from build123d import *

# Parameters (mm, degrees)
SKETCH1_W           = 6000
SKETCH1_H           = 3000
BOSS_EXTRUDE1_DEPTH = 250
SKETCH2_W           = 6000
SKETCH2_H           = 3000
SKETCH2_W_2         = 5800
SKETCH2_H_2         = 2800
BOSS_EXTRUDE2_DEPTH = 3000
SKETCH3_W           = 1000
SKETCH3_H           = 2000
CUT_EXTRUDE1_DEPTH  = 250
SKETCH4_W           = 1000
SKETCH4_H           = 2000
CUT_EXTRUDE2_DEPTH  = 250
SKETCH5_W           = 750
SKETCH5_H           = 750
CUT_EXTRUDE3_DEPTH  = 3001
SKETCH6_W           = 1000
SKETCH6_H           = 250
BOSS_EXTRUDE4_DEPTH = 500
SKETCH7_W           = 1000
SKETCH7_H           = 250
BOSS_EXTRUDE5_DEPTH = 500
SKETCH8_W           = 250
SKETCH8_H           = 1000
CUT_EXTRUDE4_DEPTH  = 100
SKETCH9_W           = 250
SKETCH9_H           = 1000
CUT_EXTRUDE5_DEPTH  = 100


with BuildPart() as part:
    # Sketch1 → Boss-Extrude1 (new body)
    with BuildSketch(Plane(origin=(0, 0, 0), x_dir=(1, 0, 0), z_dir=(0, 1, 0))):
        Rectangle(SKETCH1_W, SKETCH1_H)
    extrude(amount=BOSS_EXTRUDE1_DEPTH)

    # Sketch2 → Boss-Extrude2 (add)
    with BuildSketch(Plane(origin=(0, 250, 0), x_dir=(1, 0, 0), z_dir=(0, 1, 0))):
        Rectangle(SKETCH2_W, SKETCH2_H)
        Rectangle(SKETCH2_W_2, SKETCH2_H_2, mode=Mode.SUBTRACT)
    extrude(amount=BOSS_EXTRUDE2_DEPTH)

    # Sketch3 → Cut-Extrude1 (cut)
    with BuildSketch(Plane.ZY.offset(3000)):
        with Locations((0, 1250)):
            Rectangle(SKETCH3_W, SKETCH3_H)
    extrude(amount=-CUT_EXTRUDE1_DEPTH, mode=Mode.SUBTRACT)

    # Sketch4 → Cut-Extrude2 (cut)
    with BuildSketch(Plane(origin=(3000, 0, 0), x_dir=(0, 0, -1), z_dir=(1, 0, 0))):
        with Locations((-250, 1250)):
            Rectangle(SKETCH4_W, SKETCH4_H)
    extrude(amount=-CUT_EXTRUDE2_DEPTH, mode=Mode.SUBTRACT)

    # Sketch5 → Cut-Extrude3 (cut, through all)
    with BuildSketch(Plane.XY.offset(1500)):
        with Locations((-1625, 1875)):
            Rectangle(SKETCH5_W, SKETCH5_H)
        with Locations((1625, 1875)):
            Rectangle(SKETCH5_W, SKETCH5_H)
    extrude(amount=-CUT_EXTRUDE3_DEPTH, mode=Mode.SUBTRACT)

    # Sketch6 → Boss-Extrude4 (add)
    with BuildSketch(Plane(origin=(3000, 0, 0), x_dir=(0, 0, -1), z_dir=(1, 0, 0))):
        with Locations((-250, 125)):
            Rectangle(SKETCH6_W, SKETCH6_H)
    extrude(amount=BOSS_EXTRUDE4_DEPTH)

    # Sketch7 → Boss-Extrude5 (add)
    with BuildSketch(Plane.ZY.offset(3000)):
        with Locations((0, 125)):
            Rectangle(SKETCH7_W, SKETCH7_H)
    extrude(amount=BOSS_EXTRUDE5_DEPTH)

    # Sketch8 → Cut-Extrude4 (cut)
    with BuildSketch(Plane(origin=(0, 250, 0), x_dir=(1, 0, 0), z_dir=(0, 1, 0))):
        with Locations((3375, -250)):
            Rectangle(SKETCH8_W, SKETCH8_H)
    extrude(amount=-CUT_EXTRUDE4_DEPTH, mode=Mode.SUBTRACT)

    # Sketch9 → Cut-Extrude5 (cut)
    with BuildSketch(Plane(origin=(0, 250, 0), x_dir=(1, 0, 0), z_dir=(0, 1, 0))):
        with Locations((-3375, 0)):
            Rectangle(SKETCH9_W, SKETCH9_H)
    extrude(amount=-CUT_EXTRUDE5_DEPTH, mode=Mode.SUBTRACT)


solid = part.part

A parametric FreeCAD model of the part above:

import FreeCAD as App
import Part
import Sketcher

V = App.Vector

doc = App.newDocument("Part")
body = doc.addObject("PartDesign::Body", "Body")

# Sketch on XZ plane
sketch1 = doc.addObject("Sketcher::SketchObject", "Sketch")
body.addObject(sketch1)
sketch1.AttachmentSupport = (doc.XZ_Plane, [""])
sketch1.MapMode = "FlatFace"
sketch1.addGeometry([
    Part.LineSegment(V(-3000, -1500, 0), V(-3000, 1500, 0)),
    Part.LineSegment(V(-3000, 1500, 0), V(3000, 1500, 0)),
    Part.LineSegment(V(3000, 1500, 0), V(3000, -1500, 0)),
    Part.LineSegment(V(3000, -1500, 0), V(-3000, -1500, 0)),
], False)
sketch1.addConstraint([
    Sketcher.Constraint("Coincident", 0, 2, 1, 1),
    Sketcher.Constraint("Coincident", 1, 2, 2, 1),
    Sketcher.Constraint("Coincident", 2, 2, 3, 1),
    Sketcher.Constraint("Coincident", 3, 2, 0, 1),
    Sketcher.Constraint("Vertical", 0),
    Sketcher.Constraint("Horizontal", 1),
    Sketcher.Constraint("Vertical", 2),
    Sketcher.Constraint("Horizontal", 3),
    Sketcher.Constraint("Symmetric", 0, 2, 2, 2, -1, 1),
    Sketcher.Constraint("DistanceX", 1, 1, 1, 2, 6000.0),
    Sketcher.Constraint("DistanceY", 0, 1, 0, 2, 3000.0),
])
pad1 = doc.addObject("PartDesign::Pad", "Pad")
body.addObject(pad1)
pad1.Profile = sketch1
pad1.Length = 250
pad1.Reversed = True

# Sketch on XZ plane
sketch2 = doc.addObject("Sketcher::SketchObject", "Sketch001")
body.addObject(sketch2)
sketch2.AttachmentSupport = (doc.XZ_Plane, [""])
sketch2.MapMode = "FlatFace"
sketch2.AttachmentOffset = App.Placement(V(0, 0, -250), App.Rotation())
sketch2.addGeometry([
    Part.LineSegment(V(-3000, -1500, 0), V(-3000, 1500, 0)),  # 0
    Part.LineSegment(V(-3000, 1500, 0), V(3000, 1500, 0)),  # 1
    Part.LineSegment(V(3000, 1500, 0), V(3000, -1500, 0)),  # 2
    Part.LineSegment(V(3000, -1500, 0), V(-3000, -1500, 0)),  # 3
    Part.LineSegment(V(2900, 1400, 0), V(-2900, 1400, 0)),  # 4
    Part.LineSegment(V(-2900, 1400, 0), V(-2900, -1400, 0)),  # 5
    Part.LineSegment(V(-2900, -1400, 0), V(2900, -1400, 0)),  # 6
    Part.LineSegment(V(2900, -1400, 0), V(2900, 1400, 0)),  # 7
], False)
sketch2.addConstraint([
    Sketcher.Constraint("Coincident", 0, 2, 1, 1),
    Sketcher.Constraint("Coincident", 1, 2, 2, 1),
    Sketcher.Constraint("Coincident", 2, 2, 3, 1),
    Sketcher.Constraint("Coincident", 3, 2, 0, 1),
    Sketcher.Constraint("Coincident", 4, 2, 5, 1),
    Sketcher.Constraint("Coincident", 5, 2, 6, 1),
    Sketcher.Constraint("Coincident", 6, 2, 7, 1),
    Sketcher.Constraint("Coincident", 7, 2, 4, 1),
    Sketcher.Constraint("Vertical", 0),
    Sketcher.Constraint("Horizontal", 1),
    Sketcher.Constraint("Vertical", 2),
    Sketcher.Constraint("Horizontal", 3),
    Sketcher.Constraint("Horizontal", 4),
    Sketcher.Constraint("Vertical", 5),
    Sketcher.Constraint("Horizontal", 6),
    Sketcher.Constraint("Vertical", 7),
    Sketcher.Constraint("Symmetric", 0, 2, 2, 2, -1, 1),
    Sketcher.Constraint("Symmetric", 4, 2, 6, 2, -1, 1),
    Sketcher.Constraint("DistanceX", 1, 1, 1, 2, 6000.0),
    Sketcher.Constraint("DistanceX", 4, 2, 4, 1, 5800.0),
    Sketcher.Constraint("DistanceY", 0, 1, 0, 2, 3000.0),
    Sketcher.Constraint("DistanceY", 5, 2, 5, 1, 2800.0),
])
pad2 = doc.addObject("PartDesign::Pad", "Pad001")
body.addObject(pad2)
pad2.Profile = sketch2
pad2.Length = 3000
pad2.Reversed = True

# Sketch on YZ plane
sketch3 = doc.addObject("Sketcher::SketchObject", "Sketch002")
body.addObject(sketch3)
sketch3.AttachmentSupport = (doc.YZ_Plane, [""])
sketch3.MapMode = "FlatFace"
sketch3.AttachmentOffset = App.Placement(V(0, 0, -3000), App.Rotation())
sketch3.addGeometry([
    Part.LineSegment(V(2250, -500, 0), V(250, -500, 0)),
    Part.LineSegment(V(250, -500, 0), V(250, 500, 0)),
    Part.LineSegment(V(250, 500, 0), V(2250, 500, 0)),
    Part.LineSegment(V(2250, 500, 0), V(2250, -500, 0)),
], False)
sketch3.addConstraint([
    Sketcher.Constraint("Coincident", 0, 2, 1, 1),
    Sketcher.Constraint("Coincident", 1, 2, 2, 1),
    Sketcher.Constraint("Coincident", 2, 2, 3, 1),
    Sketcher.Constraint("Coincident", 3, 2, 0, 1),
    Sketcher.Constraint("Horizontal", 0),
    Sketcher.Constraint("Vertical", 1),
    Sketcher.Constraint("Horizontal", 2),
    Sketcher.Constraint("Vertical", 3),
    Sketcher.Constraint("DistanceX", 0, 2, 0, 1, 2000.0),
    Sketcher.Constraint("DistanceY", 1, 1, 1, 2, 1000.0),
    Sketcher.Constraint("DistanceX", -1, 1, 0, 2, 250.0),
    Sketcher.Constraint("DistanceY", 0, 2, -1, 1, 500.0),
])
pocket1 = doc.addObject("PartDesign::Pocket", "Pocket")
body.addObject(pocket1)
pocket1.Profile = sketch3
pocket1.Length = 250
pocket1.Reversed = True

# Sketch on YZ plane
sketch4 = doc.addObject("Sketcher::SketchObject", "Sketch003")
body.addObject(sketch4)
sketch4.AttachmentSupport = (doc.YZ_Plane, [""])
sketch4.MapMode = "FlatFace"
sketch4.AttachmentOffset = App.Placement(V(0, 0, 3000), App.Rotation())
sketch4.addGeometry([
    Part.LineSegment(V(2250, 750, 0), V(250, 750, 0)),
    Part.LineSegment(V(250, 750, 0), V(250, -250, 0)),
    Part.LineSegment(V(250, -250, 0), V(2250, -250, 0)),
    Part.LineSegment(V(2250, -250, 0), V(2250, 750, 0)),
], False)
sketch4.addConstraint([
    Sketcher.Constraint("Coincident", 0, 2, 1, 1),
    Sketcher.Constraint("Coincident", 1, 2, 2, 1),
    Sketcher.Constraint("Coincident", 2, 2, 3, 1),
    Sketcher.Constraint("Coincident", 3, 2, 0, 1),
    Sketcher.Constraint("Horizontal", 0),
    Sketcher.Constraint("Vertical", 1),
    Sketcher.Constraint("Horizontal", 2),
    Sketcher.Constraint("Vertical", 3),
    Sketcher.Constraint("DistanceX", 0, 2, 0, 1, 2000.0),
    Sketcher.Constraint("DistanceY", 1, 2, 1, 1, 1000.0),
    Sketcher.Constraint("DistanceX", -1, 1, 0, 2, 250.0),
    Sketcher.Constraint("DistanceY", -1, 1, 0, 2, 750.0),
])
pocket2 = doc.addObject("PartDesign::Pocket", "Pocket001")
body.addObject(pocket2)
pocket2.Profile = sketch4
pocket2.Length = 250

# Sketch on XY plane
sketch5 = doc.addObject("Sketcher::SketchObject", "Sketch004")
body.addObject(sketch5)
sketch5.AttachmentSupport = (doc.XY_Plane, [""])
sketch5.MapMode = "FlatFace"
sketch5.AttachmentOffset = App.Placement(V(0, 0, 1500), App.Rotation())
sketch5.addGeometry([
    Part.LineSegment(V(-2000, 2250, 0), V(-2000, 1500, 0)),  # 0
    Part.LineSegment(V(-2000, 1500, 0), V(-1250, 1500, 0)),  # 1
    Part.LineSegment(V(-1250, 1500, 0), V(-1250, 2250, 0)),  # 2
    Part.LineSegment(V(-1250, 2250, 0), V(-2000, 2250, 0)),  # 3
    Part.LineSegment(V(1250, 2250, 0), V(1250, 1500, 0)),  # 4
    Part.LineSegment(V(1250, 1500, 0), V(2000, 1500, 0)),  # 5
    Part.LineSegment(V(2000, 1500, 0), V(2000, 2250, 0)),  # 6
    Part.LineSegment(V(2000, 2250, 0), V(1250, 2250, 0)),  # 7
], False)
sketch5.addConstraint([
    Sketcher.Constraint("Coincident", 0, 2, 1, 1),
    Sketcher.Constraint("Coincident", 1, 2, 2, 1),
    Sketcher.Constraint("Coincident", 2, 2, 3, 1),
    Sketcher.Constraint("Coincident", 3, 2, 0, 1),
    Sketcher.Constraint("Coincident", 4, 2, 5, 1),
    Sketcher.Constraint("Coincident", 5, 2, 6, 1),
    Sketcher.Constraint("Coincident", 6, 2, 7, 1),
    Sketcher.Constraint("Coincident", 7, 2, 4, 1),
    Sketcher.Constraint("Vertical", 0),
    Sketcher.Constraint("Horizontal", 1),
    Sketcher.Constraint("Vertical", 2),
    Sketcher.Constraint("Horizontal", 3),
    Sketcher.Constraint("Vertical", 4),
    Sketcher.Constraint("Horizontal", 5),
    Sketcher.Constraint("Vertical", 6),
    Sketcher.Constraint("Horizontal", 7),
    Sketcher.Constraint("Symmetric", 1, 2, 4, 2, -2),
    Sketcher.Constraint("Symmetric", 3, 2, 6, 2, -2),
    Sketcher.Constraint("Equal", 7, 0),
    Sketcher.Constraint("DistanceX", 1, 1, 1, 2, 750.0),
    Sketcher.Constraint("DistanceX", 0, 2, -1, 1, 2000.0),
    Sketcher.Constraint("DistanceY", -1, 1, 0, 2, 1500.0),
])
pocket3 = doc.addObject("PartDesign::Pocket", "Pocket002")
body.addObject(pocket3)
pocket3.Profile = sketch5
pocket3.Type = "ThroughAll"

# Sketch on YZ plane
sketch6 = doc.addObject("Sketcher::SketchObject", "Sketch005")
body.addObject(sketch6)
sketch6.AttachmentSupport = (doc.YZ_Plane, [""])
sketch6.MapMode = "FlatFace"
sketch6.AttachmentOffset = App.Placement(V(0, 0, 3000), App.Rotation())
sketch6.addGeometry([
    Part.LineSegment(V(250, 750, 0), V(0, 750, 0)),
    Part.LineSegment(V(0, 750, 0), V(0, -250, 0)),
    Part.LineSegment(V(0, -250, 0), V(250, -250, 0)),
    Part.LineSegment(V(250, -250, 0), V(250, 750, 0)),
], False)
sketch6.addConstraint([
    Sketcher.Constraint("Coincident", 0, 2, 1, 1),
    Sketcher.Constraint("Coincident", 1, 2, 2, 1),
    Sketcher.Constraint("Coincident", 2, 2, 3, 1),
    Sketcher.Constraint("Coincident", 3, 2, 0, 1),
    Sketcher.Constraint("Horizontal", 0),
    Sketcher.Constraint("Vertical", 1),
    Sketcher.Constraint("Horizontal", 2),
    Sketcher.Constraint("Vertical", 3),
    Sketcher.Constraint("PointOnObject", 0, 2, -2),
    Sketcher.Constraint("DistanceX", 0, 2, 0, 1, 250.0),
    Sketcher.Constraint("DistanceY", 1, 2, 1, 1, 1000.0),
    Sketcher.Constraint("DistanceY", -1, 1, 0, 2, 750.0),
])
pad3 = doc.addObject("PartDesign::Pad", "Pad002")
body.addObject(pad3)
pad3.Profile = sketch6
pad3.Length = 500

# Sketch on YZ plane
sketch7 = doc.addObject("Sketcher::SketchObject", "Sketch006")
body.addObject(sketch7)
sketch7.AttachmentSupport = (doc.YZ_Plane, [""])
sketch7.MapMode = "FlatFace"
sketch7.AttachmentOffset = App.Placement(V(0, 0, -3000), App.Rotation())
sketch7.addGeometry([
    Part.LineSegment(V(250, -500, 0), V(0, -500, 0)),
    Part.LineSegment(V(0, -500, 0), V(0, 500, 0)),
    Part.LineSegment(V(0, 500, 0), V(250, 500, 0)),
    Part.LineSegment(V(250, 500, 0), V(250, -500, 0)),
], False)
sketch7.addConstraint([
    Sketcher.Constraint("Coincident", 0, 2, 1, 1),
    Sketcher.Constraint("Coincident", 1, 2, 2, 1),
    Sketcher.Constraint("Coincident", 2, 2, 3, 1),
    Sketcher.Constraint("Coincident", 3, 2, 0, 1),
    Sketcher.Constraint("Horizontal", 0),
    Sketcher.Constraint("Vertical", 1),
    Sketcher.Constraint("Horizontal", 2),
    Sketcher.Constraint("Vertical", 3),
    Sketcher.Constraint("Symmetric", 0, 2, 1, 2, -1, 1),
    Sketcher.Constraint("DistanceX", 0, 2, 0, 1, 250.0),
    Sketcher.Constraint("DistanceY", 1, 1, 1, 2, 1000.0),
])
pad4 = doc.addObject("PartDesign::Pad", "Pad003")
body.addObject(pad4)
pad4.Profile = sketch7
pad4.Length = 500
pad4.Reversed = True

# Sketch on XZ plane
sketch8 = doc.addObject("Sketcher::SketchObject", "Sketch007")
body.addObject(sketch8)
sketch8.AttachmentSupport = (doc.XZ_Plane, [""])
sketch8.MapMode = "FlatFace"
sketch8.AttachmentOffset = App.Placement(V(0, 0, -250), App.Rotation())
sketch8.addGeometry([
    Part.LineSegment(V(3250, -250, 0), V(3250, 750, 0)),
    Part.LineSegment(V(3250, 750, 0), V(3500, 750, 0)),
    Part.LineSegment(V(3500, 750, 0), V(3500, -250, 0)),
    Part.LineSegment(V(3500, -250, 0), V(3250, -250, 0)),
], False)
sketch8.addConstraint([
    Sketcher.Constraint("Coincident", 0, 2, 1, 1),
    Sketcher.Constraint("Coincident", 1, 2, 2, 1),
    Sketcher.Constraint("Coincident", 2, 2, 3, 1),
    Sketcher.Constraint("Coincident", 3, 2, 0, 1),
    Sketcher.Constraint("Vertical", 0),
    Sketcher.Constraint("Horizontal", 1),
    Sketcher.Constraint("Vertical", 2),
    Sketcher.Constraint("Horizontal", 3),
    Sketcher.Constraint("DistanceX", 1, 1, 1, 2, 250.0),
    Sketcher.Constraint("DistanceY", 0, 1, 0, 2, 1000.0),
    Sketcher.Constraint("DistanceX", -1, 1, 0, 2, 3250.0),
    Sketcher.Constraint("DistanceY", -1, 1, 0, 2, 750.0),
])
pocket4 = doc.addObject("PartDesign::Pocket", "Pocket003")
body.addObject(pocket4)
pocket4.Profile = sketch8
pocket4.Length = 100
pocket4.Reversed = True

# Sketch on XZ plane
sketch9 = doc.addObject("Sketcher::SketchObject", "Sketch008")
body.addObject(sketch9)
sketch9.AttachmentSupport = (doc.XZ_Plane, [""])
sketch9.MapMode = "FlatFace"
sketch9.AttachmentOffset = App.Placement(V(0, 0, -250), App.Rotation())
sketch9.addGeometry([
    Part.LineSegment(V(-3500, -500, 0), V(-3500, 500, 0)),
    Part.LineSegment(V(-3500, 500, 0), V(-3250, 500, 0)),
    Part.LineSegment(V(-3250, 500, 0), V(-3250, -500, 0)),
    Part.LineSegment(V(-3250, -500, 0), V(-3500, -500, 0)),
], False)
sketch9.addConstraint([
    Sketcher.Constraint("Coincident", 0, 2, 1, 1),
    Sketcher.Constraint("Coincident", 1, 2, 2, 1),
    Sketcher.Constraint("Coincident", 2, 2, 3, 1),
    Sketcher.Constraint("Coincident", 3, 2, 0, 1),
    Sketcher.Constraint("Vertical", 0),
    Sketcher.Constraint("Horizontal", 1),
    Sketcher.Constraint("Vertical", 2),
    Sketcher.Constraint("Horizontal", 3),
    Sketcher.Constraint("DistanceX", 1, 1, 1, 2, 250.0),
    Sketcher.Constraint("DistanceY", 0, 1, 0, 2, 1000.0),
    Sketcher.Constraint("DistanceX", 0, 2, -1, 1, 3500.0),
    Sketcher.Constraint("DistanceY", -1, 1, 0, 2, 500.0),
])
pocket5 = doc.addObject("PartDesign::Pocket", "Pocket004")
body.addObject(pocket5)
pocket5.Profile = sketch9
pocket5.Length = 100
pocket5.Reversed = True

doc.recompute()
